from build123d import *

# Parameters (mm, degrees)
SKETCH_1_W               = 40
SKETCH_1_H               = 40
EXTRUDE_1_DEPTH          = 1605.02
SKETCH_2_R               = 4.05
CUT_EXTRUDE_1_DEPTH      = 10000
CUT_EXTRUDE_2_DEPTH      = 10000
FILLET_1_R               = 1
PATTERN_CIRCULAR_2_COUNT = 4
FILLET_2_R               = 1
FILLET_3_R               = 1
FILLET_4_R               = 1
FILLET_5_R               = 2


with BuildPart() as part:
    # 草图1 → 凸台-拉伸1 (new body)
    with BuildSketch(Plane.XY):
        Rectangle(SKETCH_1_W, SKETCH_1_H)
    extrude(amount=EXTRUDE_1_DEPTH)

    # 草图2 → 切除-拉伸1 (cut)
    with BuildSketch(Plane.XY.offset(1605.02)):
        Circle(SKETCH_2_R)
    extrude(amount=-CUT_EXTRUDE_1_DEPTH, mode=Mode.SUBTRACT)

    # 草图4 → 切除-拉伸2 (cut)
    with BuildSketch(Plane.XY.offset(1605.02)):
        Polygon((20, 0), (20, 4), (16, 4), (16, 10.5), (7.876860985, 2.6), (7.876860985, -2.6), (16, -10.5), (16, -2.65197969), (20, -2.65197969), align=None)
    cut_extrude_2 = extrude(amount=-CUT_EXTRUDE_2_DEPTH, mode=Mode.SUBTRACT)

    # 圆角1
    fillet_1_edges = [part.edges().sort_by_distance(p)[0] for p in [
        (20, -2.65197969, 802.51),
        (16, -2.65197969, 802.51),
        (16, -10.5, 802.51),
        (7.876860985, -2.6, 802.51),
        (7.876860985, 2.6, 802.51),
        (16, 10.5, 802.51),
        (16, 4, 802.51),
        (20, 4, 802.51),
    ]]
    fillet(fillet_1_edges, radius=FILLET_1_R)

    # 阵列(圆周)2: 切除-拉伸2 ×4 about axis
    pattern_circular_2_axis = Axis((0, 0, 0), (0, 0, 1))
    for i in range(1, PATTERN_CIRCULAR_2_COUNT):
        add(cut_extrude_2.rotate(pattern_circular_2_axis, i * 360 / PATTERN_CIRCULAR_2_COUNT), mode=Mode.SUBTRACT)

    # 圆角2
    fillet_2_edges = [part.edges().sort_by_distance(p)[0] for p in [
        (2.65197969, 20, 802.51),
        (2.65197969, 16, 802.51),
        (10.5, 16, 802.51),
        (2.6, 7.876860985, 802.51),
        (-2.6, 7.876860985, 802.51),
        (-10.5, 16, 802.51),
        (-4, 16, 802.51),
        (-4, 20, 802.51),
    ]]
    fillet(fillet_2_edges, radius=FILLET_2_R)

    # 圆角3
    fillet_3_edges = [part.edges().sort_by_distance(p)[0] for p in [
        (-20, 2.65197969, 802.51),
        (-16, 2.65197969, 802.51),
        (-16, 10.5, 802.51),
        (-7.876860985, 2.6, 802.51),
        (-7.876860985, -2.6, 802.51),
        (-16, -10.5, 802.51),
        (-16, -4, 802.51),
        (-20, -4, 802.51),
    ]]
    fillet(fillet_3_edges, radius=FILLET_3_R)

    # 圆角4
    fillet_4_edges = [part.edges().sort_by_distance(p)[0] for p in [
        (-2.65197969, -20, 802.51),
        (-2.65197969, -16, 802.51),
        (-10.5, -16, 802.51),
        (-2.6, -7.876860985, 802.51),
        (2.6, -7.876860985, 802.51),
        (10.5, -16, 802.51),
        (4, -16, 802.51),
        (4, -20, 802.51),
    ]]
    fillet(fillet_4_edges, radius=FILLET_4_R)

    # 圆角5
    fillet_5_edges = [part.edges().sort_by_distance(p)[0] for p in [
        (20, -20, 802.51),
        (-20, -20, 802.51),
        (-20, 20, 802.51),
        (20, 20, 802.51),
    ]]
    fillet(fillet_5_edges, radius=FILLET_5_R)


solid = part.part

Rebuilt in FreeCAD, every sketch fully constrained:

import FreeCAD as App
import Part
import Sketcher
from FreeCAD import Vector


def edges_at(feature, points):
    """Names of the edges that pass closest to the given points."""
    edges = feature.Shape.Edges
    near = lambda p: min(range(len(edges)), key=lambda i: edges[i].distToShape(Part.Vertex(*p))[0])
    return sorted({f"Edge{near(p) + 1}" for p in points})

doc = App.newDocument("Part")
body = doc.addObject("PartDesign::Body", "Body")

# Sketch on XY plane
sketch1 = body.newObject("Sketcher::SketchObject", "Sketch")
sketch1.AttachmentSupport = (doc.getObject("XY_Plane"), [""])
sketch1.MapMode = "FlatFace"
sketch1.addGeometry([
    Part.LineSegment(Vector(-20, 20, 0), Vector(-20, -20, 0)),
    Part.LineSegment(Vector(-20, -20, 0), Vector(20, -20, 0)),
    Part.LineSegment(Vector(20, -20, 0), Vector(20, 20, 0)),
    Part.LineSegment(Vector(20, 20, 0), Vector(-20, 20, 0)),
], False)
sketch1.addConstraint([
    Sketcher.Constraint("Coincident", 0, 2, 1, 1),
    Sketcher.Constraint("Coincident", 1, 2, 2, 1),
    Sketcher.Constraint("Coincident", 2, 2, 3, 1),
    Sketcher.Constraint("Coincident", 3, 2, 0, 1),
    Sketcher.Constraint("Vertical", 0),
    Sketcher.Constraint("Horizontal", 1),
    Sketcher.Constraint("Vertical", 2),
    Sketcher.Constraint("Horizontal", 3),
    Sketcher.Constraint("Symmetric", 0, 2, 2, 2, -1, 1),
    Sketcher.Constraint("Equal", 3, 0),
    Sketcher.Constraint("DistanceX", 1, 1, 1, 2, 40.0),
])
pad1 = body.newObject("PartDesign::Pad", "Pad")
pad1.Profile = sketch1
pad1.Length = 1605.02

# Sketch on XY plane
sketch2 = body.newObject("Sketcher::SketchObject", "Sketch001")
sketch2.AttachmentSupport = (doc.getObject("XY_Plane"), [""])
sketch2.MapMode = "FlatFace"
sketch2.AttachmentOffset = App.Placement(Vector(0, 0, 1605.02), App.Rotation())
sketch2.addGeometry(Part.Circle(Vector(0, 0, 0), Vector(0, 0, 1), 4.05), False)
sketch2.addConstraint([
    Sketcher.Constraint("Coincident", 0, 3, -1, 1),
    Sketcher.Constraint("Diameter", 0, 8.1),
])
pocket1 = body.newObject("PartDesign::Pocket", "Pocket")
pocket1.Profile = sketch2
pocket1.Length = 10000

# Sketch on XY plane
sketch3 = body.newObject("Sketcher::SketchObject", "Sketch002")
sketch3.AttachmentSupport = (doc.getObject("XY_Plane"), [""])
sketch3.MapMode = "FlatFace"
sketch3.AttachmentOffset = App.Placement(Vector(0, 0, 1605.02), App.Rotation())
sketch3.addGeometry([
    Part.LineSegment(Vector(20, 4, 0), Vector(16, 4, 0)),  # 0
    Part.LineSegment(Vector(16, 4, 0), Vector(16, 10.5, 0)),  # 1
    Part.LineSegment(Vector(16, 10.5, 0), Vector(7.876861, 2.6, 0)),  # 2
    Part.LineSegment(Vector(7.876861, 2.6, 0), Vector(7.876861, -2.6, 0)),  # 3
    Part.LineSegment(Vector(7.876861, -2.6, 0), Vector(16, -10.5, 0)),  # 4
    Part.LineSegment(Vector(16, -10.5, 0), Vector(16, -2.65198, 0)),  # 5
    Part.LineSegment(Vector(16, -2.65198, 0), Vector(20, -2.65198, 0)),  # 6
    Part.LineSegment(Vector(20, -2.65198, 0), Vector(20, 4, 0)),  # 7
], False)
sketch3.addConstraint([
    Sketcher.Constraint("Coincident", 0, 2, 1, 1),
    Sketcher.Constraint("Coincident", 1, 2, 2, 1),
    Sketcher.Constraint("Coincident", 2, 2, 3, 1),
    Sketcher.Constraint("Coincident", 3, 2, 4, 1),
    Sketcher.Constraint("Coincident", 4, 2, 5, 1),
    Sketcher.Constraint("Coincident", 5, 2, 6, 1),
    Sketcher.Constraint("Coincident", 6, 2, 7, 1),
    Sketcher.Constraint("Coincident", 7, 2, 0, 1),
    Sketcher.Constraint("Horizontal", 0),
    Sketcher.Constraint("Vertical", 1),
    Sketcher.Constraint("Vertical", 3),
    Sketcher.Constraint("Vertical", 5),
    Sketcher.Constraint("Horizontal", 6),
    Sketcher.Constraint("Vertical", 7),
    Sketcher.Constraint("Symmetric", 1, 2, 4, 2, -1),
    Sketcher.Constraint("Equal", 2, 4),
    Sketcher.Constraint("DistanceX", 0, 2, 0, 1, 4.0),
    Sketcher.Constraint("DistanceY", 1, 1, 1, 2, 6.5),
    Sketcher.Constraint("DistanceY", 3, 2, 3, 1, 5.2),
    Sketcher.Constraint("DistanceX", -1, 1, 0, 2, 16.0),
    Sketcher.Constraint("DistanceY", -1, 1, 0, 2, 4.0),
    Sketcher.Constraint("DistanceY", 5, 1, 5, 2, 7.84802),
    Sketcher.Constraint("Distance", 2, 11.331169),
])
pocket2 = body.newObject("PartDesign::Pocket", "Pocket001")
pocket2.Profile = sketch3
pocket2.Length = 10000
doc.recompute()

fillet = body.newObject("PartDesign::Fillet", "Fillet")
fillet.Base = (pocket2, edges_at(pocket2, [
    (20, -2.652, 802.51),
    (16, -2.652, 802.51),
    (16, -10.5, 802.51),
    (7.877, -2.6, 802.51),
    (7.877, 2.6, 802.51),
    (16, 10.5, 802.51),
    (16, 4, 802.51),
    (20, 4, 802.51),
]))
fillet.Radius = 1
doc.recompute()

polarpattern = body.newObject("PartDesign::PolarPattern", "PolarPattern")
polarpattern.Originals = [pocket2]
polarpattern.Axis = (doc.getObject("Z_Axis"), [""])
polarpattern.Angle = 360
polarpattern.Occurrences = 4
body.Tip = polarpattern
doc.recompute()

fillet2 = body.newObject("PartDesign::Fillet", "Fillet001")
fillet2.Base = (polarpattern, edges_at(polarpattern, [
    (2.652, 20, 802.51),
    (2.652, 16, 802.51),
    (10.5, 16, 802.51),
    (2.6, 7.877, 802.51),
    (-2.6, 7.877, 802.51),
    (-10.5, 16, 802.51),
    (-4, 16, 802.51),
    (-4, 20, 802.51),
]))
fillet2.Radius = 1
doc.recompute()

fillet3 = body.newObject("PartDesign::Fillet", "Fillet002")
fillet3.Base = (fillet2, edges_at(fillet2, [
    (-20, 2.652, 802.51),
    (-16, 2.652, 802.51),
    (-16, 10.5, 802.51),
    (-7.877, 2.6, 802.51),
    (-7.877, -2.6, 802.51),
    (-16, -10.5, 802.51),
    (-16, -4, 802.51),
    (-20, -4, 802.51),
]))
fillet3.Radius = 1
doc.recompute()

fillet4 = body.newObject("PartDesign::Fillet", "Fillet003")
fillet4.Base = (fillet3, edges_at(fillet3, [
    (-2.652, -20, 802.51),
    (-2.652, -16, 802.51),
    (-10.5, -16, 802.51),
    (-2.6, -7.877, 802.51),
    (2.6, -7.877, 802.51),
    (10.5, -16, 802.51),
    (4, -16, 802.51),
    (4, -20, 802.51),
]))
fillet4.Radius = 1
doc.recompute()

fillet5 = body.newObject("PartDesign::Fillet", "Fillet004")
fillet5.Base = (fillet4, edges_at(fillet4, [
    (20, -20, 802.51),
    (-20, -20, 802.51),
    (-20, 20, 802.51),
    (20, 20, 802.51),
]))
fillet5.Radius = 2

doc.recompute()
